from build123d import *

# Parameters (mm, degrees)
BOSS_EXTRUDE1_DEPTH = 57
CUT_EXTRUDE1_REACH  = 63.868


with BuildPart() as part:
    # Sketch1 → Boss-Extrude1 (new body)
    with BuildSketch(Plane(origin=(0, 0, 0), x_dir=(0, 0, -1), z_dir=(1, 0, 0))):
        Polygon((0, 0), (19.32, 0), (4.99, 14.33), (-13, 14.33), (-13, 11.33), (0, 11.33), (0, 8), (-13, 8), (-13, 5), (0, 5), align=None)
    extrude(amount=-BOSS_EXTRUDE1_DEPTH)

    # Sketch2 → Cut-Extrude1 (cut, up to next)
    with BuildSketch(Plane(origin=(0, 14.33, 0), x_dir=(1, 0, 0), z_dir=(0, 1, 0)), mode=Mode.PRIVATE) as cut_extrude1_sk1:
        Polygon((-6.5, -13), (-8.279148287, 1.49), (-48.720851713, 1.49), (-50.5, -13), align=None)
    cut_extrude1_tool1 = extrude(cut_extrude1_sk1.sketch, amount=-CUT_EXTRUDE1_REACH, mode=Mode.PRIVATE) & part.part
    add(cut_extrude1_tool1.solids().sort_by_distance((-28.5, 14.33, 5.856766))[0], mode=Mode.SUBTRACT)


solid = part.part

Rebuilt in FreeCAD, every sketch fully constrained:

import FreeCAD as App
import Part
import Sketcher

V = App.Vector
Q = App.Units.Quantity

doc = App.newDocument("Part")
body = doc.addObject("PartDesign::Body", "Body")

# Sketch on YZ plane
sketch1 = doc.addObject("Sketcher::SketchObject", "Sketch")
body.addObject(sketch1)
sketch1.AttachmentSupport = (doc.YZ_Plane, [""])
sketch1.MapMode = "FlatFace"
sketch1.addGeometry([
    Part.LineSegment(V(0, 0, 0), V(0, -19.3, 0)),  # 0
    Part.LineSegment(V(0, -19.3, 0), V(14.3, -5, 0)),  # 1
    Part.LineSegment(V(14.3, -5, 0), V(14.3, 13, 0)),  # 2
    Part.LineSegment(V(14.3, 13, 0), V(11.3, 13, 0)),  # 3
    Part.LineSegment(V(11.3, 13, 0), V(11.3, 0, 0)),  # 4
    Part.LineSegment(V(11.3, 0, 0), V(8, 0, 0)),  # 5
    Part.LineSegment(V(8, 0, 0), V(8, 13, 0)),  # 6
    Part.LineSegment(V(8, 13, 0), V(5, 13, 0)),  # 7
    Part.LineSegment(V(5, 13, 0), V(5, 0, 0)),  # 8
    Part.LineSegment(V(5, 0, 0), V(0, 0, 0)),  # 9
], False)
sketch1.addConstraint([
    Sketcher.Constraint("Coincident", 0, 2, 1, 1),
    Sketcher.Constraint("Coincident", 1, 2, 2, 1),
    Sketcher.Constraint("Coincident", 2, 2, 3, 1),
    Sketcher.Constraint("Coincident", 3, 2, 4, 1),
    Sketcher.Constraint("Coincident", 4, 2, 5, 1),
    Sketcher.Constraint("Coincident", 5, 2, 6, 1),
    Sketcher.Constraint("Coincident", 6, 2, 7, 1),
    Sketcher.Constraint("Coincident", 7, 2, 8, 1),
    Sketcher.Constraint("Coincident", 8, 2, 9, 1),
    Sketcher.Constraint("Coincident", 9, 2, 0, 1),
    Sketcher.Constraint("Vertical", 0),
    Sketcher.Constraint("Vertical", 2),
    Sketcher.Constraint("Horizontal", 3),
    Sketcher.Constraint("Vertical", 4),
    Sketcher.Constraint("Horizontal", 5),
    Sketcher.Constraint("Vertical", 6),
    Sketcher.Constraint("Horizontal", 7),
    Sketcher.Constraint("Vertical", 8),
    Sketcher.Constraint("Horizontal", 9),
    Sketcher.Constraint("Coincident", 9, 2, -1, 1),
    Sketcher.Constraint("PointOnObject", 4, 2, -1),
    Sketcher.Constraint("Horizontal", 3, 2, 6, 2),
    Sketcher.Constraint("Equal", 3, 7),
    Sketcher.Constraint("DistanceX", 3, 2, 3, 1, Q("3 mm")),
    Sketcher.Constraint("DistanceX", 9, 2, 9, 1, Q("5 mm")),
    Sketcher.Constraint("DistanceY", 4, 2, 4, 1, Q("13 mm")),
    Sketcher.Constraint("Angle", 1, Q("45 deg")),
    Sketcher.Constraint("DistanceX", 5, 2, 5, 1, Q("3.33 mm")),
    Sketcher.Constraint("DistanceY", 0, 2, 0, 1, Q("19.32 mm")),
])
pad1 = doc.addObject("PartDesign::Pad", "Pad")
body.addObject(pad1)
pad1.Profile = sketch1
pad1.Length = 57
pad1.Reversed = True

# Sketch on XZ plane
sketch2 = doc.addObject("Sketcher::SketchObject", "Sketch001")
body.addObject(sketch2)
sketch2.AttachmentSupport = (doc.XZ_Plane, [""])
sketch2.MapMode = "FlatFace"
sketch2.AttachmentOffset = App.Placement(V(0, 0, -14.33), App.Rotation())
sketch2.addGeometry([
    Part.LineSegment(V(-6, 13, 0), V(-8, -1, 0)),
    Part.LineSegment(V(-8, -1, 0), V(-49, -1, 0)),
    Part.LineSegment(V(-49, -1, 0), V(-50, 13, 0)),
    Part.LineSegment(V(-50, 13, 0), V(-6, 13, 0)),
], False)
sketch2.addConstraint([
    Sketcher.Constraint("Coincident", 0, 2, 1, 1),
    Sketcher.Constraint("Coincident", 1, 2, 2, 1),
    Sketcher.Constraint("Coincident", 2, 2, 3, 1),
    Sketcher.Constraint("Coincident", 3, 2, 0, 1),
    Sketcher.Constraint("Horizontal", 1),
    Sketcher.Constraint("Horizontal", 3),
    Sketcher.Constraint("Equal", 0, 2),
    Sketcher.Constraint("DistanceX", 3, 1, 3, 2, Q("44 mm")),
    Sketcher.Constraint("Angle", 0, Q("-97 deg")),
    Sketcher.Constraint("DistanceY", -1, 1, 2, 2, Q("13 mm")),
    Sketcher.Constraint("DistanceX", 2, 2, -1, 1, Q("50.5 mm")),
    Sketcher.Constraint("DistanceY", 0, 2, -1, 1, Q("1.49 mm")),
])
pocket1 = doc.addObject("PartDesign::Pocket", "Pocket")
body.addObject(pocket1)
pocket1.Profile = sketch2
pocket1.Length = 14.33
pocket1.Reversed = True

doc.recompute()
